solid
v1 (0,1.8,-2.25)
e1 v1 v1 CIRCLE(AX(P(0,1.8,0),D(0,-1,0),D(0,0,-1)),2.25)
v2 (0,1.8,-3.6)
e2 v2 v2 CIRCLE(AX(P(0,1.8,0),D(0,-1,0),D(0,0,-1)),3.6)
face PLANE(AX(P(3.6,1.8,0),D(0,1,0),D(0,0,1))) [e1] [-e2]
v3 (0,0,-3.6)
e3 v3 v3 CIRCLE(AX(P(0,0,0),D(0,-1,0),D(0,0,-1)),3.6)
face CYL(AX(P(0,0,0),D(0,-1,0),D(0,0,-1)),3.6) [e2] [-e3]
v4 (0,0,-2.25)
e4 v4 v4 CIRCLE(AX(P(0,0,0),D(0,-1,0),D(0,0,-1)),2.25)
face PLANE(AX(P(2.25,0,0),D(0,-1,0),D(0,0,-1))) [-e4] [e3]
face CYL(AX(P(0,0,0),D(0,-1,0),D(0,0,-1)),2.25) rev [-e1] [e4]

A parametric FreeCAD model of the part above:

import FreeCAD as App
import Part
import Sketcher

V = App.Vector
Q = App.Units.Quantity

doc = App.newDocument("Part")
body = doc.addObject("PartDesign::Body", "Body")

# Sketch on XY plane
sketch1 = doc.addObject("Sketcher::SketchObject", "Sketch")
body.addObject(sketch1)
sketch1.AttachmentSupport = (doc.XY_Plane, [""])
sketch1.MapMode = "FlatFace"
sketch1.addGeometry([
    Part.LineSegment(V(2.25, 1.8, 0), V(2.25, 0, 0)),
    Part.LineSegment(V(2.25, 0, 0), V(3.6, 0, 0)),
    Part.LineSegment(V(3.6, 0, 0), V(3.6, 1.8, 0)),
    Part.LineSegment(V(3.6, 1.8, 0), V(2.25, 1.8, 0)),
], False)
sketch1.addConstraint([
    Sketcher.Constraint("Coincident", 0, 2, 1, 1),
    Sketcher.Constraint("Coincident", 1, 2, 2, 1),
    Sketcher.Constraint("Coincident", 2, 2, 3, 1),
    Sketcher.Constraint("Coincident", 3, 2, 0, 1),
    Sketcher.Constraint("Vertical", 0),
    Sketcher.Constraint("Horizontal", 1),
    Sketcher.Constraint("Vertical", 2),
    Sketcher.Constraint("Horizontal", 3),
    Sketcher.Constraint("PointOnObject", 0, 2, -1),
    Sketcher.Constraint("DistanceY", 0, 2, 0, 1, Q("1.8 mm")),
    Sketcher.Constraint("DistanceX", 1, 1, 1, 2, Q("1.35 mm")),
    Sketcher.Constraint("DistanceX", -1, 1, 1, 2, Q("3.6 mm")),
])
revolution = doc.addObject("PartDesign::Revolution", "Revolution")
body.addObject(revolution)
revolution.Profile = sketch1
revolution.ReferenceAxis = (sketch1, ["V_Axis"])
revolution.Angle = 360

doc.recompute()
